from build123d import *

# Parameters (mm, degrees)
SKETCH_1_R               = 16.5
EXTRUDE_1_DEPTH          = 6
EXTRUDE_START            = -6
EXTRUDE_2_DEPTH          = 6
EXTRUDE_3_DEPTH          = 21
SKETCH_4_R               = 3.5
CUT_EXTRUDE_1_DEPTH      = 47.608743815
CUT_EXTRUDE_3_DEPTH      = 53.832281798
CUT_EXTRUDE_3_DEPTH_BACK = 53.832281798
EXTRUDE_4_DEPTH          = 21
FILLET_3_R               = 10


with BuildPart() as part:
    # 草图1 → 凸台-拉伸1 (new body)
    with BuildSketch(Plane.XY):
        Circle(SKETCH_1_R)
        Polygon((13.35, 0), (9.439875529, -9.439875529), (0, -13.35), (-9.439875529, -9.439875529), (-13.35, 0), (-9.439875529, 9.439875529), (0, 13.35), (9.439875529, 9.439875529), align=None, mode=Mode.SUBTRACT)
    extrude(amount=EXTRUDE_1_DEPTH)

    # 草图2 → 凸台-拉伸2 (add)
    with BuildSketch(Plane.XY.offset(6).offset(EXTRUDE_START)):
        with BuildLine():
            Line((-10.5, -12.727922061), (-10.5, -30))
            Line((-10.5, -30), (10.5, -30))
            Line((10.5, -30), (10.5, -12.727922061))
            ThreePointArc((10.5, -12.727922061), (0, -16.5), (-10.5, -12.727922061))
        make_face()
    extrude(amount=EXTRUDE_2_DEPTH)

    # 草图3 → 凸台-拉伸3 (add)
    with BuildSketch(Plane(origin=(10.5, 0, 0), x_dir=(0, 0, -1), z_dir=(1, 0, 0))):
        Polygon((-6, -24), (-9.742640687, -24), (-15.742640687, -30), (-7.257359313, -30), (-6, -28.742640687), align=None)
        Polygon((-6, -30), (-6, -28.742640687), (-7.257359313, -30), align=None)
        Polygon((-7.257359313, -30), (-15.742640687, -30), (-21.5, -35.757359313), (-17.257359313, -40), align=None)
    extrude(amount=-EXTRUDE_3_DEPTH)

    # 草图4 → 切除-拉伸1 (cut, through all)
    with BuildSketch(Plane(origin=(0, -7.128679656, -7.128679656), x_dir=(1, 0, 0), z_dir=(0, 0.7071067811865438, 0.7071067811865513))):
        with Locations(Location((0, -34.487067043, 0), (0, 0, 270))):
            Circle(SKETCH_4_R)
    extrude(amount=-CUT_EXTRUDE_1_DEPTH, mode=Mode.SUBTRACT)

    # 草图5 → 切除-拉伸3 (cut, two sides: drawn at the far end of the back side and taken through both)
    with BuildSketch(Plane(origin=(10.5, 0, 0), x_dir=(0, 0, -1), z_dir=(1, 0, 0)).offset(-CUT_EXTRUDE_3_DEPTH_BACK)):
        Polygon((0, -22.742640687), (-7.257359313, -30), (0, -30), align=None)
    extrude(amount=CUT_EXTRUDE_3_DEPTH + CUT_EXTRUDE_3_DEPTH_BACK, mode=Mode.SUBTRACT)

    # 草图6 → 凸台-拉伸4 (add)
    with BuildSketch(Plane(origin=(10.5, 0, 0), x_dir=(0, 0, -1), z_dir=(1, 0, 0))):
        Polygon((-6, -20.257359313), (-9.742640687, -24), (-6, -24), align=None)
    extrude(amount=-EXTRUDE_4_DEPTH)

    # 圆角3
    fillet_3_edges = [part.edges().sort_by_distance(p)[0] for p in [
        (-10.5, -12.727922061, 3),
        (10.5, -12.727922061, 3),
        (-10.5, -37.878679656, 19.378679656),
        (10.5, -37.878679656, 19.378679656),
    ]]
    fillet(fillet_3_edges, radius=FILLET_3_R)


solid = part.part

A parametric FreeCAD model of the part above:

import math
import FreeCAD as App
import Part
import Sketcher
from FreeCAD import Vector
Q = App.Units.Quantity


def edges_at(feature, points):
    """Names of the edges that pass closest to the given points."""
    edges = feature.Shape.Edges
    near = lambda p: min(range(len(edges)), key=lambda i: edges[i].distToShape(Part.Vertex(*p))[0])
    return sorted({f"Edge{near(p) + 1}" for p in points})


def add_polygon(sketch, points):
    """Adds a closed chain of lines whose ends are joined by coincident constraints."""
    first, n = sketch.GeometryCount, len(points)
    for a, b in zip(points, points[1:] + points[:1]):
        sketch.addGeometry(Part.LineSegment(App.Vector(*a, 0), App.Vector(*b, 0)), False)
    for i in range(n):
        sketch.addConstraint(Sketcher.Constraint("Coincident", first + i, 2, first + (i + 1) % n, 1))

doc = App.newDocument("Part")
body = doc.addObject("PartDesign::Body", "Body")

sketch1 = body.newObject("Sketcher::SketchObject", "Sketch")
sketch1.AttachmentSupport = (doc.getObject("XY_Plane"), [""])
sketch1.MapMode = "FlatFace"
sketch1.addGeometry(Part.Circle(Vector(0, 0, 0), Vector(0, 0, 1), 16), False)
add_polygon(sketch1, [(9, 9), (13, 0), (9, -9), (0, -13), (-9, -9), (-13, 0), (-9, 9), (0, 13)])
sketch1.addConstraint([
    Sketcher.Constraint("Coincident", 0, 3, -1, 1),
    Sketcher.Constraint("Symmetric", 1, 2, 5, 2, -1, 1),
    Sketcher.Constraint("Symmetric", 2, 2, 6, 2, -1, 1),
    Sketcher.Constraint("Symmetric", 3, 2, 7, 2, -1, 1),
    Sketcher.Constraint("Symmetric", 4, 2, 8, 2, -1, 1),
    Sketcher.Constraint("Symmetric", 2, 2, 4, 2, -2),
    Sketcher.Constraint("PointOnObject", 1, 2, -1),
    Sketcher.Constraint("PointOnObject", 3, 2, -2),
    Sketcher.Constraint("Perpendicular", 1, 3),
    Sketcher.Constraint("Equal", 2, 3),
    Sketcher.Constraint("Diameter", 0, Q("33 mm")),
    Sketcher.Constraint("Angle", 1, Q("-67.5 deg")),
    Sketcher.Constraint("DistanceX", 5, 2, 1, 2, Q("26.7 mm")),
])
pad1 = body.newObject("PartDesign::Pad", "Pad")
pad1.Profile = sketch1
pad1.Length = 6

sketch2 = body.newObject("Sketcher::SketchObject", "Sketch001")
sketch2.AttachmentSupport = (doc.getObject("XY_Plane"), [""])
sketch2.MapMode = "FlatFace"
sketch2.addGeometry([
    Part.LineSegment(Vector(-10, -13, 0), Vector(-10, -30, 0)),
    Part.LineSegment(Vector(-10, -30, 0), Vector(10, -30, 0)),
    Part.LineSegment(Vector(10, -30, 0), Vector(10, -13, 0)),
    Part.ArcOfCircle(Part.Circle(Vector(0, 0, 0), Vector(0, 0, 1), 16), math.radians(-130), math.radians(-50)),
], False)
sketch2.addConstraint([
    Sketcher.Constraint("Coincident", 0, 2, 1, 1),
    Sketcher.Constraint("Coincident", 1, 2, 2, 1),
    Sketcher.Constraint("Coincident", 2, 2, 3, 2),
    Sketcher.Constraint("Coincident", 3, 1, 0, 1),
    Sketcher.Constraint("Vertical", 0),
    Sketcher.Constraint("Horizontal", 1),
    Sketcher.Constraint("Vertical", 2),
    Sketcher.Constraint("Coincident", 3, 3, -1, 1),
    Sketcher.Constraint("Horizontal", 2, 2, 3, 1),
    Sketcher.Constraint("Radius", 3, Q("16.5 mm")),
    Sketcher.Constraint("DistanceX", 1, 1, 1, 2, Q("21 mm")),
    Sketcher.Constraint("DistanceY", 0, 2, -1, 1, Q("30 mm")),
])
pad2 = body.newObject("PartDesign::Pad", "Pad001")
pad2.Profile = sketch2
pad2.Length = 6

sketch3 = body.newObject("Sketcher::SketchObject", "Sketch002")
sketch3.AttachmentSupport = (doc.getObject("YZ_Plane"), [""])
sketch3.MapMode = "FlatFace"
sketch3.AttachmentOffset = App.Placement(Vector(0, 0, 10.5), App.Rotation())
add_polygon(sketch3, [(-24, 6), (-24, 9.7), (-35.8, 21.5), (-40, 17.3), (-30, 7.3), (-30, 6)])
sketch3.addConstraint([
    Sketcher.Constraint("Vertical", 0),
    Sketcher.Constraint("Vertical", 4),
    Sketcher.Constraint("Horizontal", 5),
    Sketcher.Constraint("Perpendicular", 1, 2),
    Sketcher.Constraint("Perpendicular", 2, 3),
    Sketcher.Constraint("DistanceX", 5, 1, 5, 2, Q("6 mm")),
    Sketcher.Constraint("Angle", 1, Q("135 deg")),
    Sketcher.Constraint("Distance", 2, Q("6 mm")),
    Sketcher.Constraint("DistanceX", 0, 2, -1, 1, Q("24 mm")),
    Sketcher.Constraint("DistanceX", 2, 2, -1, 1, Q("40 mm")),
    Sketcher.Constraint("DistanceY", -1, 1, 4, 2, Q("6 mm")),
    Sketcher.Constraint("DistanceY", -1, 1, 1, 2, Q("21.5 mm")),
])
pad3 = body.newObject("PartDesign::Pad", "Pad002")
pad3.Profile = sketch3
pad3.Length = 21
pad3.Reversed = True

sketch4 = body.newObject("Sketcher::SketchObject", "Sketch003")
sketch4.Placement = App.Placement(Vector(0, -7.12868, -7.12868), App.Rotation(Vector(1, 0, 0), Vector(0, 0.707106781, -0.707106781), Vector(0, 0.707106781, 0.707106781), "ZXY"))
sketch4.addGeometry(Part.Circle(Vector(0, -34.5, 0), Vector(0, 0, 1), 3.5), False)
sketch4.addConstraint([
    Sketcher.Constraint("PointOnObject", 0, 3, -2),
    Sketcher.Constraint("Diameter", 0, Q("7 mm")),
    Sketcher.Constraint("DistanceY", 0, 3, -1, 1, Q("34.487067 mm")),
])
pocket1 = body.newObject("PartDesign::Pocket", "Pocket")
pocket1.Profile = sketch4
pocket1.Type = "ThroughAll"

sketch5 = body.newObject("Sketcher::SketchObject", "Sketch004")
sketch5.AttachmentSupport = (doc.getObject("YZ_Plane"), [""])
sketch5.MapMode = "FlatFace"
sketch5.AttachmentOffset = App.Placement(Vector(0, 0, 10.5), App.Rotation())
add_polygon(sketch5, [(-23, 0), (-30, 7), (-30, 0)])
sketch5.addConstraint([
    Sketcher.Constraint("Vertical", 1),
    Sketcher.Constraint("Horizontal", 2),
    Sketcher.Constraint("PointOnObject", 1, 2, -1),
    Sketcher.Constraint("Equal", 2, 1),
    Sketcher.Constraint("DistanceX", 0, 2, -1, 1, Q("30 mm")),
    Sketcher.Constraint("DistanceX", 2, 1, 2, 2, Q("7.257359 mm")),
])
pocket2 = body.newObject("PartDesign::Pocket", "Pocket001")
pocket2.Profile = sketch5
pocket2.Type = "ThroughAll"
pocket2.Midplane = True

sketch6 = body.newObject("Sketcher::SketchObject", "Sketch005")
sketch6.AttachmentSupport = (doc.getObject("YZ_Plane"), [""])
sketch6.MapMode = "FlatFace"
sketch6.AttachmentOffset = App.Placement(Vector(0, 0, 10.5), App.Rotation())
add_polygon(sketch6, [(-20.3, 6), (-24, 9.7), (-24, 6)])
sketch6.addConstraint([
    Sketcher.Constraint("Vertical", 1),
    Sketcher.Constraint("Horizontal", 2),
    Sketcher.Constraint("Equal", 2, 1),
    Sketcher.Constraint("DistanceX", 0, 2, -1, 1, Q("24 mm")),
    Sketcher.Constraint("DistanceY", -1, 1, 1, 2, Q("6 mm")),
    Sketcher.Constraint("DistanceX", 2, 1, 2, 2, Q("3.742641 mm")),
])
pad4 = body.newObject("PartDesign::Pad", "Pad003")
pad4.Profile = sketch6
pad4.Length = 21
pad4.Reversed = True
doc.recompute()

fillet = body.newObject("PartDesign::Fillet", "Fillet")
fillet.Base = (pad4, edges_at(pad4, [
    (-10.5, -12.728, 3),
    (10.5, -12.728, 3),
    (-10.5, -37.879, 19.379),
    (10.5, -37.879, 19.379),
]))
fillet.Radius = 10

doc.recompute()
